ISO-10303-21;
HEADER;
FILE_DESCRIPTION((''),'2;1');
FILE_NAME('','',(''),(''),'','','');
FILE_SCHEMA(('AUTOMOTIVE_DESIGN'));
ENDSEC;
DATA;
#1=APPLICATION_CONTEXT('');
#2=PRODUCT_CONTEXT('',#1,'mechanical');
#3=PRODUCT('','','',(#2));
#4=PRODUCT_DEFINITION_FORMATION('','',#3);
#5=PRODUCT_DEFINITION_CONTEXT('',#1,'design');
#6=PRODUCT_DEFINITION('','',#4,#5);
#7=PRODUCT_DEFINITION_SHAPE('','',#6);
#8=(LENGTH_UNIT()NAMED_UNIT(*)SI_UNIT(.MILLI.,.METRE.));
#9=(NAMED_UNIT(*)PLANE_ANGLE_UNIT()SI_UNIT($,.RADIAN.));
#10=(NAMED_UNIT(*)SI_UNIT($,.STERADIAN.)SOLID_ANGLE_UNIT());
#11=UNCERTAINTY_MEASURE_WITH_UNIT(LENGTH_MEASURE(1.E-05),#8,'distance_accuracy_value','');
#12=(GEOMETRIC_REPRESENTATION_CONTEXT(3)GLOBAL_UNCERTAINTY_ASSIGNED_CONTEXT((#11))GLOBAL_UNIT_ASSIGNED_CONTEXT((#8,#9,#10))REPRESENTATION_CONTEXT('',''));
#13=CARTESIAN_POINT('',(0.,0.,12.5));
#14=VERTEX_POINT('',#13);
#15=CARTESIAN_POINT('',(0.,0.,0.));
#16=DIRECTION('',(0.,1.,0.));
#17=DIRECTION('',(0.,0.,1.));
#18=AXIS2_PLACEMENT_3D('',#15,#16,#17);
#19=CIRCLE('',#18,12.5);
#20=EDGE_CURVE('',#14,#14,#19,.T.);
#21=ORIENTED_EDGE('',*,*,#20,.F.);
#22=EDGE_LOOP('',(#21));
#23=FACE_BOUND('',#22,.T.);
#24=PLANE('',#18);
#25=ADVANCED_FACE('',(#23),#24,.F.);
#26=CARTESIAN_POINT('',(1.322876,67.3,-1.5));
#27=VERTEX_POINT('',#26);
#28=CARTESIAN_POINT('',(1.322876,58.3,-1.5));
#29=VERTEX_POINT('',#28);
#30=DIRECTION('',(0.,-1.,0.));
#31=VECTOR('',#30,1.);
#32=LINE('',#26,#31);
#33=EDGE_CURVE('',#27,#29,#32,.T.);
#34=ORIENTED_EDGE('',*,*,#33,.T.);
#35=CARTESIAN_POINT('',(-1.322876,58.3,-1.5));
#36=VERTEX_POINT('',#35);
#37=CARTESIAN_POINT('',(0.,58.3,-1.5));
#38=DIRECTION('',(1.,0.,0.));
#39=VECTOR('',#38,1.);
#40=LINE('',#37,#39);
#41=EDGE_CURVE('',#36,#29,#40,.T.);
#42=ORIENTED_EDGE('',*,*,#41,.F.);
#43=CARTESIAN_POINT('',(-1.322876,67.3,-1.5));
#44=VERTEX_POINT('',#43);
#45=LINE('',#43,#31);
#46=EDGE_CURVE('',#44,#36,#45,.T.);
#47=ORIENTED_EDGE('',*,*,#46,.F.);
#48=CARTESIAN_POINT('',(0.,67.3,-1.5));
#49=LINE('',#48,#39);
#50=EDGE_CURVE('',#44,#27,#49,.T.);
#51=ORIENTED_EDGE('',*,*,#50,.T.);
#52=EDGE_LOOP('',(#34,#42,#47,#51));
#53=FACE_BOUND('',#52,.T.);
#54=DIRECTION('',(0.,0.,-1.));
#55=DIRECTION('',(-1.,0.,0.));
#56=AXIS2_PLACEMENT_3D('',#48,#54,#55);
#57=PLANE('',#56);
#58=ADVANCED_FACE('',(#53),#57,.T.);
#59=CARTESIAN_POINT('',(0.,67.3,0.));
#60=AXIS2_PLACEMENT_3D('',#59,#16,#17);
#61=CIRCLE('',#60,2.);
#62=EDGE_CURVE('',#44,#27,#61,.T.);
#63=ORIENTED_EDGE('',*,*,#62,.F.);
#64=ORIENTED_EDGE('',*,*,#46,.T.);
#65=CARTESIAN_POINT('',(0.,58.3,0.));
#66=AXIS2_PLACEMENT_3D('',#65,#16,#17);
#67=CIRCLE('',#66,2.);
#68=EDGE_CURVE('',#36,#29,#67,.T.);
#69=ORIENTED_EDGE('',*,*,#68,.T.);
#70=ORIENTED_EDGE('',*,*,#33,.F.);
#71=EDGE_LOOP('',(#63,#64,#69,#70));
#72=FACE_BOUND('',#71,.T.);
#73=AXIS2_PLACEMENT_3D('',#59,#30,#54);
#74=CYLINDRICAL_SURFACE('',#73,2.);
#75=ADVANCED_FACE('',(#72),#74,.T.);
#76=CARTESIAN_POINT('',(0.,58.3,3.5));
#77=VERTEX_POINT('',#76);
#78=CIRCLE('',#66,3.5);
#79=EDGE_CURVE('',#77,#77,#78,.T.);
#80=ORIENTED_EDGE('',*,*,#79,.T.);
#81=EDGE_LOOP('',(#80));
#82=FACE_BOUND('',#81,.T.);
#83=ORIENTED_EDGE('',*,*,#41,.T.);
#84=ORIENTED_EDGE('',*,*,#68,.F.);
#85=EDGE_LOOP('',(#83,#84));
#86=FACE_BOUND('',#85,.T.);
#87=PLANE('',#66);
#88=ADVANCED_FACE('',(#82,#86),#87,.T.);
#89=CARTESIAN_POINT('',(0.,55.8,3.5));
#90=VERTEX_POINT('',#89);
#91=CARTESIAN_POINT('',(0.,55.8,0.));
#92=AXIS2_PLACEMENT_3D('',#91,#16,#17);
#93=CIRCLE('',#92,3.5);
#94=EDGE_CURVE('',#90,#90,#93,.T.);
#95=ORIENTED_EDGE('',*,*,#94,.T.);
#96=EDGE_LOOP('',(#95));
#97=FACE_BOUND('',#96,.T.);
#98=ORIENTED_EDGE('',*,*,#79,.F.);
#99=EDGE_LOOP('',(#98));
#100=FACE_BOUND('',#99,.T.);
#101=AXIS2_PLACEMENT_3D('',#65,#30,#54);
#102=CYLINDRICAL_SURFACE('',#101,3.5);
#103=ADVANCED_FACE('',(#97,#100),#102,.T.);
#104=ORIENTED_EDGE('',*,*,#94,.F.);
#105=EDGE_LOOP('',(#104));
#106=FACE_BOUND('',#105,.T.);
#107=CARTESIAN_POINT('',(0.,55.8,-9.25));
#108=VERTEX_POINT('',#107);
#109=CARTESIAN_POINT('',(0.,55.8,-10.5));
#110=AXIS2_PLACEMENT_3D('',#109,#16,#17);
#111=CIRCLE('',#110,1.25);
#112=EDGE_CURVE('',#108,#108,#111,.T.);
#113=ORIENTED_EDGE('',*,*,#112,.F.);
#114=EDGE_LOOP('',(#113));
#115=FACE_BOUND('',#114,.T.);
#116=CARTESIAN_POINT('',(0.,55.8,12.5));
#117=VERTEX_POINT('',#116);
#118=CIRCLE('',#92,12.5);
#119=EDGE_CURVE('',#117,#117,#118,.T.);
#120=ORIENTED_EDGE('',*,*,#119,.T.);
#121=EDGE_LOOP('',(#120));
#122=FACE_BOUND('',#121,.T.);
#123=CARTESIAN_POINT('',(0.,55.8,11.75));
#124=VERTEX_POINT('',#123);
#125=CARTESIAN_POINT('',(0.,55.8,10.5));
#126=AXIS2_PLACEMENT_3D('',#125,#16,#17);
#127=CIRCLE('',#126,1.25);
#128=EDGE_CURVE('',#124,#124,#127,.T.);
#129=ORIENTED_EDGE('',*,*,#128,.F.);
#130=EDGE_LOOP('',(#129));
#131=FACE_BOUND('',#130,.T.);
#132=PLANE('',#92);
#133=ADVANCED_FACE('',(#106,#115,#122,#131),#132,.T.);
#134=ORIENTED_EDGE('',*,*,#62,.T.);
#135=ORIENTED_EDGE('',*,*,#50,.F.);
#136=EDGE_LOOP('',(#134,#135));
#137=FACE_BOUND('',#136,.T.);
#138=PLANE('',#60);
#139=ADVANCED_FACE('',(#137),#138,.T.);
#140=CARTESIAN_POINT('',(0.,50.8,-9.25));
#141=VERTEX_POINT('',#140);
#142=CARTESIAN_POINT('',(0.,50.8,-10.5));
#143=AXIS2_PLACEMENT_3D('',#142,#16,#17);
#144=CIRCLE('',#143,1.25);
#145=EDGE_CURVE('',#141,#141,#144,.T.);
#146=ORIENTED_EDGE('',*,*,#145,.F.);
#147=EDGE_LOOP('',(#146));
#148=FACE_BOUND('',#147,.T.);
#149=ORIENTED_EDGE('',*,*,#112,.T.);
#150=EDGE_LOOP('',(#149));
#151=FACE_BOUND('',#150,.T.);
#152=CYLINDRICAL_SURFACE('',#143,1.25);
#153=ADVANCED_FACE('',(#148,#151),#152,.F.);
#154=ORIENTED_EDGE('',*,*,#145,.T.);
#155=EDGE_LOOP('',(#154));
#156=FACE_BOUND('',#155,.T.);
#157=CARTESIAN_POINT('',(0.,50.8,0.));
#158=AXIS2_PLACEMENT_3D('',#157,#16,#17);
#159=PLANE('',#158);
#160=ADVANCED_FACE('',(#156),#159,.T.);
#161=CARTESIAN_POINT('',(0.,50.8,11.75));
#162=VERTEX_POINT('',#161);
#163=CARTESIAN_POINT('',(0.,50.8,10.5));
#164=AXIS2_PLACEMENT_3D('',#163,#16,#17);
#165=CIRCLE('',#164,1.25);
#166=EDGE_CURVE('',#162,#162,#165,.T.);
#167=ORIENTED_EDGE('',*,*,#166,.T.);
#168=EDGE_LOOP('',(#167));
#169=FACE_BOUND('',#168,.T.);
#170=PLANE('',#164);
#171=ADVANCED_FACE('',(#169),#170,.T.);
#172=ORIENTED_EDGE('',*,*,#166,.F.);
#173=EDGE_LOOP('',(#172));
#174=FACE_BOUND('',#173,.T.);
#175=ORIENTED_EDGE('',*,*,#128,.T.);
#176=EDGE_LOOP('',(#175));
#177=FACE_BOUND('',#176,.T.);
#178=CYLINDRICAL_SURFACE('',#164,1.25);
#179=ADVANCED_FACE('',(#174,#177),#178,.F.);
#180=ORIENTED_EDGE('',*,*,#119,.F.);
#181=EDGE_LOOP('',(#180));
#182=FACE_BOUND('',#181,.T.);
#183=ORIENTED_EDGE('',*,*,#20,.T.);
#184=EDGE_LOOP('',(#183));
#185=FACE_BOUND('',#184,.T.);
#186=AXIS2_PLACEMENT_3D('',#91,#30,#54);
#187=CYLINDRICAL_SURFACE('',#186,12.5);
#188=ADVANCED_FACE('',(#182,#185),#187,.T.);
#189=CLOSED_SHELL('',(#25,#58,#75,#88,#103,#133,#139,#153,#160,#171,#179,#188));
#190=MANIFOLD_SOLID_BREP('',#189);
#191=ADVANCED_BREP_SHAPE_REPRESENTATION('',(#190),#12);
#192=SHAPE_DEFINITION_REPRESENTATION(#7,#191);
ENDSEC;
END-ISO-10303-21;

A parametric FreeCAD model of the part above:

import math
import FreeCAD as App
import Part
import Sketcher

V = App.Vector
Q = App.Units.Quantity

doc = App.newDocument("Part")
body = doc.addObject("PartDesign::Body", "Body")

# Sketch on XZ plane
sketch1 = body.newObject("Sketcher::SketchObject", "Sketch")
sketch1.AttachmentSupport = (doc.getObject("XZ_Plane"), [""])
sketch1.MapMode = "FlatFace"
sketch1.addGeometry(Part.Circle(V(0, 0, 0), V(0, 0, 1), 12), False)
sketch1.addConstraint([
    Sketcher.Constraint("Coincident", 0, 3, -1, 1),
    Sketcher.Constraint("Diameter", 0, Q("25 mm")),
])
pad1 = body.newObject("PartDesign::Pad", "Pad")
pad1.Profile = sketch1
pad1.Length = 55.8
pad1.Reversed = True

# Sketch on XZ plane
sketch2 = body.newObject("Sketcher::SketchObject", "Sketch001")
sketch2.AttachmentSupport = (doc.getObject("XZ_Plane"), [""])
sketch2.MapMode = "FlatFace"
sketch2.AttachmentOffset = App.Placement(V(0, 0, -55.8), App.Rotation())
sketch2.addGeometry([
    Part.Circle(V(0, -10.5, 0), V(0, 0, 1), 1.2),
    Part.Circle(V(0, 10.5, 0), V(0, 0, 1), 1.2),
], False)
sketch2.addConstraint([
    Sketcher.Constraint("Equal", 0, 1),
    Sketcher.Constraint("Symmetric", 0, 3, 1, 3, -1, 1),
    Sketcher.Constraint("PointOnObject", 0, 3, -2),
    Sketcher.Constraint("Diameter", 0, Q("2.5 mm")),
    Sketcher.Constraint("DistanceY", 0, 3, 1, 3, Q("21 mm")),
])
pocket1 = body.newObject("PartDesign::Pocket", "Pocket")
pocket1.Profile = sketch2
pocket1.Length = 5
pocket1.Reversed = True

# Sketch on XZ plane
sketch3 = body.newObject("Sketcher::SketchObject", "Sketch002")
sketch3.AttachmentSupport = (doc.getObject("XZ_Plane"), [""])
sketch3.MapMode = "FlatFace"
sketch3.AttachmentOffset = App.Placement(V(0, 0, -55.8), App.Rotation())
sketch3.addGeometry(Part.Circle(V(0, 0, 0), V(0, 0, 1), 3.5), False)
sketch3.addConstraint([
    Sketcher.Constraint("Coincident", 0, 3, -1, 1),
    Sketcher.Constraint("Diameter", 0, Q("7 mm")),
])
pad2 = body.newObject("PartDesign::Pad", "Pad001")
pad2.Profile = sketch3
pad2.Length = 2.5
pad2.Reversed = True

# Sketch on XZ plane
sketch4 = body.newObject("Sketcher::SketchObject", "Sketch003")
sketch4.AttachmentSupport = (doc.getObject("XZ_Plane"), [""])
sketch4.MapMode = "FlatFace"
sketch4.AttachmentOffset = App.Placement(V(0, 0, -58.3), App.Rotation())
sketch4.addGeometry([
    Part.LineSegment(V(1.3, -1.5, 0), V(-1.3, -1.5, 0)),
    Part.ArcOfCircle(Part.Circle(V(0, 0, 0), V(0, 0, 1), 2), math.radians(0), math.radians(229)),
    Part.ArcOfCircle(Part.Circle(V(0, 0, 0), V(0, 0, 1), 2), math.radians(-49), math.radians(0)),
], False)
sketch4.addConstraint([
    Sketcher.Constraint("Coincident", 0, 2, 1, 2),
    Sketcher.Constraint("Tangent", 1, 1, 2, 2),
    Sketcher.Constraint("Coincident", 2, 1, 0, 1),
    Sketcher.Constraint("Horizontal", 0),
    Sketcher.Constraint("Coincident", 1, 3, -1, 1),
    Sketcher.Constraint("Equal", 1, 2),
    Sketcher.Constraint("PointOnObject", 1, 1, -1),
    Sketcher.Constraint("Radius", 1, Q("2 mm")),
    Sketcher.Constraint("DistanceY", 0, 2, -1, 1, Q("1.5 mm")),
])
pad3 = body.newObject("PartDesign::Pad", "Pad002")
pad3.Profile = sketch4
pad3.Length = 9
pad3.Reversed = True

doc.recompute()
